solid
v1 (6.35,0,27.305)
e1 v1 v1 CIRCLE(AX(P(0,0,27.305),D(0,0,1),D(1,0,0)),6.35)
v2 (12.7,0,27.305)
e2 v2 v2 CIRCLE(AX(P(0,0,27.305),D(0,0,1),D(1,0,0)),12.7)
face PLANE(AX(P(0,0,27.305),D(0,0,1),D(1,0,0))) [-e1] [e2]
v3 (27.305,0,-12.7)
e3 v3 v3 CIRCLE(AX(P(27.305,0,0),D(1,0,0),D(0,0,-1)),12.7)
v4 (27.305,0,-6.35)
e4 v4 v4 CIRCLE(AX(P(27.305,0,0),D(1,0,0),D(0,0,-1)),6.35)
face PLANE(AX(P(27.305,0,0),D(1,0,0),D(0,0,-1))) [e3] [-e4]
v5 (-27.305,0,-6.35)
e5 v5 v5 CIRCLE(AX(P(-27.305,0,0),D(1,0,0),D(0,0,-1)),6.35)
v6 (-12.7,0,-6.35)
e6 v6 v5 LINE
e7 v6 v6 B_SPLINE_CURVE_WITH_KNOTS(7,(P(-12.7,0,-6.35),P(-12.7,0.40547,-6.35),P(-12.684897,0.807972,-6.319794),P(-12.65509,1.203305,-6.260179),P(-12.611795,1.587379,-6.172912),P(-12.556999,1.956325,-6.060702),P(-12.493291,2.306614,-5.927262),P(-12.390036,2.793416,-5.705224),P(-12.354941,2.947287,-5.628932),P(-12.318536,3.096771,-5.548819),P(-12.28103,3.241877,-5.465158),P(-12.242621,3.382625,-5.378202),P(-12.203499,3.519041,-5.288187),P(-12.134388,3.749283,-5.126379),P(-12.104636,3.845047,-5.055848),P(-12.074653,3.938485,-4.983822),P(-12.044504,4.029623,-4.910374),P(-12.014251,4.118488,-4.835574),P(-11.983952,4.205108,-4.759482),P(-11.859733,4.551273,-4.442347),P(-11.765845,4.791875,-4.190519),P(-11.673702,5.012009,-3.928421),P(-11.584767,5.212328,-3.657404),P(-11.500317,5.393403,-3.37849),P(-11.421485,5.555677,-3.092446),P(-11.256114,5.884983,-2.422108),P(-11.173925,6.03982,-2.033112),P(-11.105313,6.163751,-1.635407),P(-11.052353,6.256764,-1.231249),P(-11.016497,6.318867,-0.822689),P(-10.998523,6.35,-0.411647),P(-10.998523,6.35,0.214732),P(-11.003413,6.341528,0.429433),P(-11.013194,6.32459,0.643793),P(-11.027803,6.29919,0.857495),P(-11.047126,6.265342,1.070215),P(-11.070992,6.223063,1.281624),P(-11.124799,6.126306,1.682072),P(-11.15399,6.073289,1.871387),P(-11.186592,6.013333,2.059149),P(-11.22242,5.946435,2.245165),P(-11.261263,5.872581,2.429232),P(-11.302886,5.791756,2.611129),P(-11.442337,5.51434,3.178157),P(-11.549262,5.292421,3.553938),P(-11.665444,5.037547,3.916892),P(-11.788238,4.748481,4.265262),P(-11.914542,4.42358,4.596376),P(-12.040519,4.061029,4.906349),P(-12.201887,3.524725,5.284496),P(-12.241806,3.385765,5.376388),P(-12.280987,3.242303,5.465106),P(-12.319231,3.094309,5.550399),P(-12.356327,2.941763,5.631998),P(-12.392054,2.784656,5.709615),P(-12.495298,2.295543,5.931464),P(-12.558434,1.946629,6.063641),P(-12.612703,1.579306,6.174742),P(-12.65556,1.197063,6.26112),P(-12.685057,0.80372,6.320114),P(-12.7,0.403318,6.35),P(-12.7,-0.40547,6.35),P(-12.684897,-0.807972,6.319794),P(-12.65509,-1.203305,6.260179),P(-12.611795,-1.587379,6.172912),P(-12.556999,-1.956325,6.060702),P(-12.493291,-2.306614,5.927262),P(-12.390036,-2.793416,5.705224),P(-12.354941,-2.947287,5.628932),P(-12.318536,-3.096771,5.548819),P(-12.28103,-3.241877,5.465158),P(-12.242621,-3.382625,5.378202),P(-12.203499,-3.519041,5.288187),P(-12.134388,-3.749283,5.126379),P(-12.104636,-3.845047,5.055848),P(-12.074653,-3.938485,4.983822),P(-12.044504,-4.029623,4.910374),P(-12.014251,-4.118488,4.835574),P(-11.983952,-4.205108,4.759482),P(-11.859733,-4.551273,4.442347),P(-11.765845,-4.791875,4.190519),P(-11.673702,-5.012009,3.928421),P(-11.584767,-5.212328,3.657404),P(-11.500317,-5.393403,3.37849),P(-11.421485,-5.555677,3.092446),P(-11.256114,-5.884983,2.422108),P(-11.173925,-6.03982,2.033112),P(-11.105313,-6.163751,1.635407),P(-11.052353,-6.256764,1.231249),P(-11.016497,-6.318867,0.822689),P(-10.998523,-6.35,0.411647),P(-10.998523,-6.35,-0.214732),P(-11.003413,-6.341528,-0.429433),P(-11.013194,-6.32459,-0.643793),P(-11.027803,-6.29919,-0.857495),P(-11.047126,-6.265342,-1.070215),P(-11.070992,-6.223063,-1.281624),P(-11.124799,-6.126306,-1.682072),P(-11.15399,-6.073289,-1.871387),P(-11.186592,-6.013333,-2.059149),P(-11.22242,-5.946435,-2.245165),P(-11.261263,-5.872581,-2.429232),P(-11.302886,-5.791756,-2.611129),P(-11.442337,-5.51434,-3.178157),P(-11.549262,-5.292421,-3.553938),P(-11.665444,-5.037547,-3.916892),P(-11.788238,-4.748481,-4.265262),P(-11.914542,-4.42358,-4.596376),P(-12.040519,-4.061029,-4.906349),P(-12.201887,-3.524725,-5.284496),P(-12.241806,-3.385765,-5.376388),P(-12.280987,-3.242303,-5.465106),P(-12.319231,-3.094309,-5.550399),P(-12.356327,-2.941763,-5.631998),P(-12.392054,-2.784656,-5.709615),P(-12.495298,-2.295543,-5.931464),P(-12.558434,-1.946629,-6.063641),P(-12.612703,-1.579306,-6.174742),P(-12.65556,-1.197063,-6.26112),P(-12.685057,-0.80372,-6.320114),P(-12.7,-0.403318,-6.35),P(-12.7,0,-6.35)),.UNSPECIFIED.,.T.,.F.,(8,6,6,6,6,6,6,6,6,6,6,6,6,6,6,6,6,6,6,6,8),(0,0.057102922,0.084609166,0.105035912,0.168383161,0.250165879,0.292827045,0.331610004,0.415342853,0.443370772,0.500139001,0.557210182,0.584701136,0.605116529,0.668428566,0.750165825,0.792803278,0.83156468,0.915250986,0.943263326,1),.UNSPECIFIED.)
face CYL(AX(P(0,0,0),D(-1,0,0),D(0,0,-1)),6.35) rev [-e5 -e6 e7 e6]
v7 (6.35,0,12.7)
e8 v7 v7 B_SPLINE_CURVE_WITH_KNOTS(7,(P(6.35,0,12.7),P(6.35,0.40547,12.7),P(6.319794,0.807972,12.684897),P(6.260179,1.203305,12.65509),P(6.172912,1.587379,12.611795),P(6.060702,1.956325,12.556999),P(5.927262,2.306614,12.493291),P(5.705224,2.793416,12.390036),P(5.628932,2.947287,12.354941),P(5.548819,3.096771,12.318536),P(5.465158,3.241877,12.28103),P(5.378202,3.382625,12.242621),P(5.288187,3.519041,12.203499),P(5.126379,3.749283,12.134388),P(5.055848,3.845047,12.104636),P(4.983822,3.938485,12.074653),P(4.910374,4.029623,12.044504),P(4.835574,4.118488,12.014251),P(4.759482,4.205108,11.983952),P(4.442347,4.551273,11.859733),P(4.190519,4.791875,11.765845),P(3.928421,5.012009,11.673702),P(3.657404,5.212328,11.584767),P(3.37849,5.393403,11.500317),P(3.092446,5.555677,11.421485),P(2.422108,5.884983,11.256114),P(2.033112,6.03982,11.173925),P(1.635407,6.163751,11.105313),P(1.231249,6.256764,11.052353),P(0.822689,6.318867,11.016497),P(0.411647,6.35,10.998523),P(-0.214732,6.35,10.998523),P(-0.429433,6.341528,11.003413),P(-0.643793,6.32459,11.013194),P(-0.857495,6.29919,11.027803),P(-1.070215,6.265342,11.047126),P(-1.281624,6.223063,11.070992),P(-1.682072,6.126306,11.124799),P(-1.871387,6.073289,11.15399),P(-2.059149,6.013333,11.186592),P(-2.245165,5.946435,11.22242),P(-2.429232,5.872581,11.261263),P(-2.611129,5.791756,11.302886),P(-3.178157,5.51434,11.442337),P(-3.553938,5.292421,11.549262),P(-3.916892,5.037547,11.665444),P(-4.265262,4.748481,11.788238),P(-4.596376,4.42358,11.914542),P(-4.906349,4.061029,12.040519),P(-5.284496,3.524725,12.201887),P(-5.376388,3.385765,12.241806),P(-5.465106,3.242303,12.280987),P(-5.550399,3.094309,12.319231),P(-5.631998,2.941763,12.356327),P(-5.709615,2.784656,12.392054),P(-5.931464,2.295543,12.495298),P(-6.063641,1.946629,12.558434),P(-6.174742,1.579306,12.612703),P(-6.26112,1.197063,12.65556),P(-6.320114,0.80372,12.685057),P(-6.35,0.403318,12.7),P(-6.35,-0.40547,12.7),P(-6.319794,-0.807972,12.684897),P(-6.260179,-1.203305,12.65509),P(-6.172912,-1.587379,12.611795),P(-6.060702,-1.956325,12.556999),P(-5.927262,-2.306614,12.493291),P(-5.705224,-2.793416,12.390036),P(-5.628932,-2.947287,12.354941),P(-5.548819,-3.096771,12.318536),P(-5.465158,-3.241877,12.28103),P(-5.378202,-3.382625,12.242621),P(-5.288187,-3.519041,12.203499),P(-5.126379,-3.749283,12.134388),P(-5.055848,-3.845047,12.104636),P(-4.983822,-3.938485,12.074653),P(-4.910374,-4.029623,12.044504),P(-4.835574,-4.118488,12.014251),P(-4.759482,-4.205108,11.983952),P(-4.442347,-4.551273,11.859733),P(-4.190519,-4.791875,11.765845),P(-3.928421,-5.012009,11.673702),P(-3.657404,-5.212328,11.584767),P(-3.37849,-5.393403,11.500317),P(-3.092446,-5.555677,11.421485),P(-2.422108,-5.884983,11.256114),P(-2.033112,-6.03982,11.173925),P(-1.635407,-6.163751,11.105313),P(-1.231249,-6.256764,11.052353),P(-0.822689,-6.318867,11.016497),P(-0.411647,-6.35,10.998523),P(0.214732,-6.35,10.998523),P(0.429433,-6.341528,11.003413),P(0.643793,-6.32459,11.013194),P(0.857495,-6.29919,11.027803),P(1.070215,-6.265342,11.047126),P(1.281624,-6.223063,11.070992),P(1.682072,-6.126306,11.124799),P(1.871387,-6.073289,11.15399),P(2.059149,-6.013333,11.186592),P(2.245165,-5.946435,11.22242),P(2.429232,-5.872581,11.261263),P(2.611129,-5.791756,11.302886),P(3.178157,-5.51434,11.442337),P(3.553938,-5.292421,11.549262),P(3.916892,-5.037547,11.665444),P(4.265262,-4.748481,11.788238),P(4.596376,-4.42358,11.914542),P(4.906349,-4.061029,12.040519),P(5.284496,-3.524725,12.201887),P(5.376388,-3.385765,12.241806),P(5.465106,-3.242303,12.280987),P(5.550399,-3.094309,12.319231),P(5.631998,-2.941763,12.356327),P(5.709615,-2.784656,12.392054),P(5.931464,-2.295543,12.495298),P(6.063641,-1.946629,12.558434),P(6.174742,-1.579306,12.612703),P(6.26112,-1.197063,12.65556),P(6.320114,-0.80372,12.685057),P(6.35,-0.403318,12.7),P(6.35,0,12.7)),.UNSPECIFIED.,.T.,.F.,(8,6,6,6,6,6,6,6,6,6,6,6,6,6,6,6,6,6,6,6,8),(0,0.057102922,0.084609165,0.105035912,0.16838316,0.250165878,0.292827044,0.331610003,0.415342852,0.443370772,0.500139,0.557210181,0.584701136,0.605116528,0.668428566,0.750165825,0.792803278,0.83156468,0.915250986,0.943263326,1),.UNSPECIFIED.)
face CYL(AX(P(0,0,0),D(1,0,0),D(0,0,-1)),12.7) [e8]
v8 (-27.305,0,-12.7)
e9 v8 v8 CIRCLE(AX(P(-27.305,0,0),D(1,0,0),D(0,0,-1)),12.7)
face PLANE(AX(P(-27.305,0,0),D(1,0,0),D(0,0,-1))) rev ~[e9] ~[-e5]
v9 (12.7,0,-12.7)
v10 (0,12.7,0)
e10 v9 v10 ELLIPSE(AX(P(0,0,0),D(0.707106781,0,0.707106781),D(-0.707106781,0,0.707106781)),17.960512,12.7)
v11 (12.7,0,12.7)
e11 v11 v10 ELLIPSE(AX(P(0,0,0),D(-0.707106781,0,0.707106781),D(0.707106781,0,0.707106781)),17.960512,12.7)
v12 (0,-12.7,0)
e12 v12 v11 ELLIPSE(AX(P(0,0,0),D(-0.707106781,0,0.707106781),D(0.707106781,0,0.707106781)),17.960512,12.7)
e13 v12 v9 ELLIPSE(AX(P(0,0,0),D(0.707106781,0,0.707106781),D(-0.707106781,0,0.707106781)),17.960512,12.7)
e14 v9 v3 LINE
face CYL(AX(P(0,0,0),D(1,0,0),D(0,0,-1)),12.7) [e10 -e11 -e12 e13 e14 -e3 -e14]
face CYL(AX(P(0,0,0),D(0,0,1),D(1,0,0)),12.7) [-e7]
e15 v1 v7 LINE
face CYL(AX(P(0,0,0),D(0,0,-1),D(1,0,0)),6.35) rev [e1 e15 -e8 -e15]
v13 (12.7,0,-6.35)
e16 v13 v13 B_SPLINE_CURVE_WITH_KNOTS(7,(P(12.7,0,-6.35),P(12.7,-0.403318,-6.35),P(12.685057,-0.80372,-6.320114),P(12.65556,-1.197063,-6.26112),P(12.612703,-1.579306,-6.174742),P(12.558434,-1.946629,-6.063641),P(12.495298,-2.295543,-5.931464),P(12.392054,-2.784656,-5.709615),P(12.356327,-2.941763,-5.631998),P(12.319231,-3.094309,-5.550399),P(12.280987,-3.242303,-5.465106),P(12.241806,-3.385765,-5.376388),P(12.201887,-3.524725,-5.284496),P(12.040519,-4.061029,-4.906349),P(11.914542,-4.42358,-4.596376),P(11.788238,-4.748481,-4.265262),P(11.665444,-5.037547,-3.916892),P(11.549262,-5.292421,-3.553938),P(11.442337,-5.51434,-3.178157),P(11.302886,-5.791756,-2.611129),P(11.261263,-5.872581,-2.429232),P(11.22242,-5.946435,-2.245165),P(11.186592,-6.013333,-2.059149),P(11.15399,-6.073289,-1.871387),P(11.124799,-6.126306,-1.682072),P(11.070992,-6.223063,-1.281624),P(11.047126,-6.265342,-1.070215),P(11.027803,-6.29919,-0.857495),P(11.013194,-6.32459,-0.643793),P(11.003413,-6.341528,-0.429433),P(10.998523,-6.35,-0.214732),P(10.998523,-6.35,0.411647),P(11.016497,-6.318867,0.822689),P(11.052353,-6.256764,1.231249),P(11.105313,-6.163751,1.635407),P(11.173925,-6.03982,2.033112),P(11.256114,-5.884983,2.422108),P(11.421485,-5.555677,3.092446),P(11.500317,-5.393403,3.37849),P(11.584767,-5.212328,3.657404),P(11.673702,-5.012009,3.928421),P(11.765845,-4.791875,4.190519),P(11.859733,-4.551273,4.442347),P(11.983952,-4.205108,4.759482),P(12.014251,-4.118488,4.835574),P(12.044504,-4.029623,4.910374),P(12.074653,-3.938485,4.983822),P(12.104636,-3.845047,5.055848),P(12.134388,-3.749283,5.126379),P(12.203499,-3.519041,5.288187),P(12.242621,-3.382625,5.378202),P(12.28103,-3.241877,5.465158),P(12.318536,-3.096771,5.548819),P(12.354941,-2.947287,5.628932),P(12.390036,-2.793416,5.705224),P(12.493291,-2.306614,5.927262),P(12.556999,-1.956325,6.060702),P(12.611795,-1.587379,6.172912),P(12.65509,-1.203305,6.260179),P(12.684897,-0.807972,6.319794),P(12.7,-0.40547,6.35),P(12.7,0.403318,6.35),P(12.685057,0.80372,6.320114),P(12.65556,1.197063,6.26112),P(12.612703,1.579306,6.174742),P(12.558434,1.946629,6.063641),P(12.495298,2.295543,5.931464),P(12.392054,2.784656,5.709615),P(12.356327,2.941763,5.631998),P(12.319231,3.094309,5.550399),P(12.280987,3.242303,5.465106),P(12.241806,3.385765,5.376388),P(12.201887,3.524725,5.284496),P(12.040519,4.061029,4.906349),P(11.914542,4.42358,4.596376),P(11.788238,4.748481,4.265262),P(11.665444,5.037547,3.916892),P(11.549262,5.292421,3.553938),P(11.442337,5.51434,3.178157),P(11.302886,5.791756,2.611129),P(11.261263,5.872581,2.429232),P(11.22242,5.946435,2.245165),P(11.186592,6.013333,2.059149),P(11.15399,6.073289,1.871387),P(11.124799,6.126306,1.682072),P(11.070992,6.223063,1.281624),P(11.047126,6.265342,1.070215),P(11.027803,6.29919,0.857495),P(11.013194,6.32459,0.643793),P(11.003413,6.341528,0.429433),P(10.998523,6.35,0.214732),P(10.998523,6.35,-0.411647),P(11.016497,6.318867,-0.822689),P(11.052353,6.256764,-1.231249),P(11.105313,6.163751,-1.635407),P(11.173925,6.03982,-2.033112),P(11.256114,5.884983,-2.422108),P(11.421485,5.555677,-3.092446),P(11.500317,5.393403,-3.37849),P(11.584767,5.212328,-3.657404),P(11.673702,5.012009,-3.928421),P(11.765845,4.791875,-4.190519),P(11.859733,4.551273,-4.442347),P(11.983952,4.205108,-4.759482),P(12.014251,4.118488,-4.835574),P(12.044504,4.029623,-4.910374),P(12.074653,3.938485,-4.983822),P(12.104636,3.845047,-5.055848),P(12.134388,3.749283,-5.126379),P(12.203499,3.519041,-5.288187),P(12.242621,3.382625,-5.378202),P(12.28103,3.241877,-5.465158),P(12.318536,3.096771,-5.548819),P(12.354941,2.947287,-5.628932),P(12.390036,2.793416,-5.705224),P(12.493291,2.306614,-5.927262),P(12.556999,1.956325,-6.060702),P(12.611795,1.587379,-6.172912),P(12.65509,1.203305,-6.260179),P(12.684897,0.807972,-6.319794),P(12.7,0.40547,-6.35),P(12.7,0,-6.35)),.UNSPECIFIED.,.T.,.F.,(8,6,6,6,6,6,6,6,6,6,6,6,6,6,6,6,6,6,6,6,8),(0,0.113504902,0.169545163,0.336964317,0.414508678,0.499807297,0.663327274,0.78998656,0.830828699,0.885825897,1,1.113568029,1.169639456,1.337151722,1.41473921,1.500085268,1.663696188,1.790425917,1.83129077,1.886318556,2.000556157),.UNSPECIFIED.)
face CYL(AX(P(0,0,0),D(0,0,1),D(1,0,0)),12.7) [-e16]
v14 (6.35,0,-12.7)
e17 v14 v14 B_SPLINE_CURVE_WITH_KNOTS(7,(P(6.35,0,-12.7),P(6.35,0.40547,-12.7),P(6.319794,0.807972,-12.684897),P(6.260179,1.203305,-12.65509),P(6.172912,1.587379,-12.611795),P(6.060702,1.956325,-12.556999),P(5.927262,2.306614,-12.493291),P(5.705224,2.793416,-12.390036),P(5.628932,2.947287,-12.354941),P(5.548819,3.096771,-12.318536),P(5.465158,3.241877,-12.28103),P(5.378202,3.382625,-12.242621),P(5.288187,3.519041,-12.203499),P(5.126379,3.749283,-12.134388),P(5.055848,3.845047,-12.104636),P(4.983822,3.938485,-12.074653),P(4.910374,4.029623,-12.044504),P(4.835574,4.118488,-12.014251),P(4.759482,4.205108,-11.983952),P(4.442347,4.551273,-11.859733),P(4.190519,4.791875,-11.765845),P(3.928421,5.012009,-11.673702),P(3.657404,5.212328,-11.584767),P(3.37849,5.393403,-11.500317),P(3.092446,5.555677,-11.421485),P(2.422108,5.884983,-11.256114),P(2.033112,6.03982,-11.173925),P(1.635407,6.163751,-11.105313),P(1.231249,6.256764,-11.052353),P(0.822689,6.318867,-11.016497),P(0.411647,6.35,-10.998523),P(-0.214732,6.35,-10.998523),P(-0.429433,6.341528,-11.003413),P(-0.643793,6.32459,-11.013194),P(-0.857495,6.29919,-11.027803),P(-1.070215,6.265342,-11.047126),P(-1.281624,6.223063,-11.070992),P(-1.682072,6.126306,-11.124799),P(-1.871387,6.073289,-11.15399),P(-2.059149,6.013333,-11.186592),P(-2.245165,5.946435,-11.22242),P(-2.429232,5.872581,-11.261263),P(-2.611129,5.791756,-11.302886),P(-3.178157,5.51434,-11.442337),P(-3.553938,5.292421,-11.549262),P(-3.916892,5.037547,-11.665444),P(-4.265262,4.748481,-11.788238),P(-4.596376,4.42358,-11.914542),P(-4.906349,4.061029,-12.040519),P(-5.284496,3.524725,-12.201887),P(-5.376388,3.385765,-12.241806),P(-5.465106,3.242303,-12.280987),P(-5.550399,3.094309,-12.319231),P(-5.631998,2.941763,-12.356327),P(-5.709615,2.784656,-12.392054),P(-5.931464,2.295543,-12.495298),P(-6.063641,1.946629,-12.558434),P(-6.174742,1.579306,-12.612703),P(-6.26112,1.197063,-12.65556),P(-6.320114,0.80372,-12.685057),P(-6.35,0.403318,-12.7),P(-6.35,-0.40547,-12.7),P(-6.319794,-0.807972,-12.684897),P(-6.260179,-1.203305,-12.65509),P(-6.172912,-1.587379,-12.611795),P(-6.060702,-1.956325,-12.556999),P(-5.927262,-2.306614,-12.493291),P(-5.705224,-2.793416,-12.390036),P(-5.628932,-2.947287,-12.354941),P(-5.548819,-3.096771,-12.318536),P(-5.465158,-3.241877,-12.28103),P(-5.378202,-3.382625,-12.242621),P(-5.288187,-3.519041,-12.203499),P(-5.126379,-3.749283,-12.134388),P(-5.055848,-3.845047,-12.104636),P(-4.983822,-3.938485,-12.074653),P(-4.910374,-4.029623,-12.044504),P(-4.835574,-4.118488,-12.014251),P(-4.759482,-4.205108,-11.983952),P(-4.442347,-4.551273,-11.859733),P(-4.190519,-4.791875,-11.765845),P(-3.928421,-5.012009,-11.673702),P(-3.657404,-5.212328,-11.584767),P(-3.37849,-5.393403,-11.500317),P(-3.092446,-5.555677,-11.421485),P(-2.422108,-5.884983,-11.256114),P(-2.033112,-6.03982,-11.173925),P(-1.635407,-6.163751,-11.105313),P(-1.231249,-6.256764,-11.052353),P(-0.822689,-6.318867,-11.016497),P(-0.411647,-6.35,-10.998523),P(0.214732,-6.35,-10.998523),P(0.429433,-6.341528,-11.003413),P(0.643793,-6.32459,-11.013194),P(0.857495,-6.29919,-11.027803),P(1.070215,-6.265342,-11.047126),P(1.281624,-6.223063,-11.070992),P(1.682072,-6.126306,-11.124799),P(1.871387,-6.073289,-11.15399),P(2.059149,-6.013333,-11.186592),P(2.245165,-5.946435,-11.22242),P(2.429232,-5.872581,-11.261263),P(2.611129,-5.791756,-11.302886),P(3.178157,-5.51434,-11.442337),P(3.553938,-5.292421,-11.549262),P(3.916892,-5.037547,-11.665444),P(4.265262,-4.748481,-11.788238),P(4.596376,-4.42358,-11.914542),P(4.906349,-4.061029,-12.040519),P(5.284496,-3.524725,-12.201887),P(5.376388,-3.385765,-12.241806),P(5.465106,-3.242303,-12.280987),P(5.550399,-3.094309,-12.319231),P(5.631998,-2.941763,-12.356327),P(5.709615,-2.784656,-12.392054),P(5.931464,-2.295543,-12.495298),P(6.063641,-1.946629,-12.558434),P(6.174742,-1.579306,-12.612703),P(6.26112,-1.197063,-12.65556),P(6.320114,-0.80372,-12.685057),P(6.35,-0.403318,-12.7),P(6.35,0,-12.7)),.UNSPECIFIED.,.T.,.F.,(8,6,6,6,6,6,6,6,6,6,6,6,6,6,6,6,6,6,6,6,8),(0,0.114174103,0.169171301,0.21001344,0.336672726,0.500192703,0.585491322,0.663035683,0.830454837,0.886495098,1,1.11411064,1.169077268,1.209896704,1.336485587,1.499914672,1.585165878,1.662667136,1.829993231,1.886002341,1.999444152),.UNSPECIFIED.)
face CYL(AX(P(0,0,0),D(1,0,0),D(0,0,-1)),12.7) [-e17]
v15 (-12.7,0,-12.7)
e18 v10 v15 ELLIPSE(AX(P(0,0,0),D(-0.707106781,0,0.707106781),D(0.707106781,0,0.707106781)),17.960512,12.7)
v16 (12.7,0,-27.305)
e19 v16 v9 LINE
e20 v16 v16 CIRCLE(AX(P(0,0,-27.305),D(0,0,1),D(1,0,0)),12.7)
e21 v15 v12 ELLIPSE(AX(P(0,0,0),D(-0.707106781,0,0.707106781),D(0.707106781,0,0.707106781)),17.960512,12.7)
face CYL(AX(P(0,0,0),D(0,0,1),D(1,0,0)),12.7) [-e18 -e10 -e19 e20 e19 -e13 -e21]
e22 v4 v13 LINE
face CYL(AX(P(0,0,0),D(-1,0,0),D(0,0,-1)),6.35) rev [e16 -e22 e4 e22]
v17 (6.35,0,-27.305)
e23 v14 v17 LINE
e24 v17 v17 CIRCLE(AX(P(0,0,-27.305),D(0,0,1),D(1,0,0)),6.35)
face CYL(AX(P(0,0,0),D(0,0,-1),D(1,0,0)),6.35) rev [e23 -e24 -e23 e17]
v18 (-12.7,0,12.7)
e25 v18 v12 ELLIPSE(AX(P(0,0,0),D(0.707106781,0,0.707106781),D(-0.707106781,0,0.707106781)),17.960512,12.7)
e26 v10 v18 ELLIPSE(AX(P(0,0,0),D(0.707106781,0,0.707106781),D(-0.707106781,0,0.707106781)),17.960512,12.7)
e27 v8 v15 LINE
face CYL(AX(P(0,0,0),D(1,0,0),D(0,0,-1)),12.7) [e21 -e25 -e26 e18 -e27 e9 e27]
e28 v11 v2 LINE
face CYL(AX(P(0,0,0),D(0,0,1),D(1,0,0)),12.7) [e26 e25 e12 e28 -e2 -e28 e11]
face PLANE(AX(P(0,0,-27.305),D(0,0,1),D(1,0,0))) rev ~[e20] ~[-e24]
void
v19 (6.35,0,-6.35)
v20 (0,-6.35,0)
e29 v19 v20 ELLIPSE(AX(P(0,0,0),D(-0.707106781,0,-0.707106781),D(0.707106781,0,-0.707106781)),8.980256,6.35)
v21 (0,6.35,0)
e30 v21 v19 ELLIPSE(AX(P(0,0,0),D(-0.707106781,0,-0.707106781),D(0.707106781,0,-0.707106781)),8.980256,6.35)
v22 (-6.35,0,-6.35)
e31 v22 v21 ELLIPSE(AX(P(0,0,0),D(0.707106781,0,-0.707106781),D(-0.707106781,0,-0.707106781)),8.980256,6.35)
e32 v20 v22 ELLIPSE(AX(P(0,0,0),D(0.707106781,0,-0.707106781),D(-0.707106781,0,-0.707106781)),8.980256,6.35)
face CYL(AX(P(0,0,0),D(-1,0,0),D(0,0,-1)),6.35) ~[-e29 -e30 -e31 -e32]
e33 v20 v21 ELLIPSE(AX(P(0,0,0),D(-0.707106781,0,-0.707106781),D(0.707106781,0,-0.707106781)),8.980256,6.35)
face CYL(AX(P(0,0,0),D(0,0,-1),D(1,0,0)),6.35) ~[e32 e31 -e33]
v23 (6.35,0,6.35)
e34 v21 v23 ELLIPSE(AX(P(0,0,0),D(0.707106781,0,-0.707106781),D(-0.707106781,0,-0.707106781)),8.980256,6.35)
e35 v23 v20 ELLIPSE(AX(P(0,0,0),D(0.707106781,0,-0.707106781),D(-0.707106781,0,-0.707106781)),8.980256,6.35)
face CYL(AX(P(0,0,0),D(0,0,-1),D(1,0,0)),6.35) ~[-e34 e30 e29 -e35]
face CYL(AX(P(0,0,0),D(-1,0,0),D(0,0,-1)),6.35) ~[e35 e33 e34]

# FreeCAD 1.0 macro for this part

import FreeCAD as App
import Part
import Sketcher
from FreeCAD import Vector
Q = App.Units.Quantity

doc = App.newDocument("Part")
params = doc.addObject("Spreadsheet::Sheet", "Params")
for row, (alias, value) in enumerate([
    ("sketch1_diameter", "1 in"),
    ("sketch1_diameter2", "0.5 in"),
    ("pad1_length", "2.15 in"),
    ("sketch2_diameter", "1 in"),
    ("sketch2_diameter2", "0.5 in"),
    ("pad2_length", "2.15 in"),
], start=1):
    params.set(f"A{row}", alias)
    params.set(f"B{row}", "=" + value)
    params.setAlias(f"B{row}", alias)

body = doc.addObject("PartDesign::Body", "Body")

sketch1 = body.newObject("Sketcher::SketchObject", "Sketch")
sketch1.AttachmentSupport = (doc.getObject("XY_Plane"), [""])
sketch1.MapMode = "FlatFace"
sketch1.addGeometry([
    Part.Circle(Vector(0, 0, 0), Vector(0, 0, 1), 13),
    Part.Circle(Vector(0, 0, 0), Vector(0, 0, 1), 6),
], False)
sketch1.addConstraint([
    Sketcher.Constraint("Coincident", 0, 3, -1, 1),
    Sketcher.Constraint("Coincident", 1, 3, -1, 1),
    Sketcher.Constraint("Diameter", 0, Q("1 in")),
    Sketcher.Constraint("Diameter", 1, Q("0.5 in")),
])
sketch1.setExpression("Constraints[2]", "Params.sketch1_diameter")
sketch1.setExpression("Constraints[3]", "Params.sketch1_diameter2")
pad1 = body.newObject("PartDesign::Pad", "Pad")
pad1.Profile = sketch1
pad1.setExpression("Length", "Params.pad1_length")
pad1.Midplane = True

sketch2 = body.newObject("Sketcher::SketchObject", "Sketch001")
sketch2.AttachmentSupport = (doc.getObject("YZ_Plane"), [""])
sketch2.MapMode = "FlatFace"
sketch2.addGeometry([
    Part.Circle(Vector(0, 0, 0), Vector(0, 0, 1), 13),
    Part.Circle(Vector(0, 0, 0), Vector(0, 0, 1), 6),
], False)
sketch2.addConstraint([
    Sketcher.Constraint("Coincident", 0, 3, -1, 1),
    Sketcher.Constraint("Coincident", 1, 3, -1, 1),
    Sketcher.Constraint("Diameter", 0, Q("1 in")),
    Sketcher.Constraint("Diameter", 1, Q("0.5 in")),
])
sketch2.setExpression("Constraints[2]", "Params.sketch2_diameter")
sketch2.setExpression("Constraints[3]", "Params.sketch2_diameter2")
pad2 = body.newObject("PartDesign::Pad", "Pad001")
pad2.Profile = sketch2
pad2.setExpression("Length", "Params.pad2_length")
pad2.Midplane = True

doc.recompute()
